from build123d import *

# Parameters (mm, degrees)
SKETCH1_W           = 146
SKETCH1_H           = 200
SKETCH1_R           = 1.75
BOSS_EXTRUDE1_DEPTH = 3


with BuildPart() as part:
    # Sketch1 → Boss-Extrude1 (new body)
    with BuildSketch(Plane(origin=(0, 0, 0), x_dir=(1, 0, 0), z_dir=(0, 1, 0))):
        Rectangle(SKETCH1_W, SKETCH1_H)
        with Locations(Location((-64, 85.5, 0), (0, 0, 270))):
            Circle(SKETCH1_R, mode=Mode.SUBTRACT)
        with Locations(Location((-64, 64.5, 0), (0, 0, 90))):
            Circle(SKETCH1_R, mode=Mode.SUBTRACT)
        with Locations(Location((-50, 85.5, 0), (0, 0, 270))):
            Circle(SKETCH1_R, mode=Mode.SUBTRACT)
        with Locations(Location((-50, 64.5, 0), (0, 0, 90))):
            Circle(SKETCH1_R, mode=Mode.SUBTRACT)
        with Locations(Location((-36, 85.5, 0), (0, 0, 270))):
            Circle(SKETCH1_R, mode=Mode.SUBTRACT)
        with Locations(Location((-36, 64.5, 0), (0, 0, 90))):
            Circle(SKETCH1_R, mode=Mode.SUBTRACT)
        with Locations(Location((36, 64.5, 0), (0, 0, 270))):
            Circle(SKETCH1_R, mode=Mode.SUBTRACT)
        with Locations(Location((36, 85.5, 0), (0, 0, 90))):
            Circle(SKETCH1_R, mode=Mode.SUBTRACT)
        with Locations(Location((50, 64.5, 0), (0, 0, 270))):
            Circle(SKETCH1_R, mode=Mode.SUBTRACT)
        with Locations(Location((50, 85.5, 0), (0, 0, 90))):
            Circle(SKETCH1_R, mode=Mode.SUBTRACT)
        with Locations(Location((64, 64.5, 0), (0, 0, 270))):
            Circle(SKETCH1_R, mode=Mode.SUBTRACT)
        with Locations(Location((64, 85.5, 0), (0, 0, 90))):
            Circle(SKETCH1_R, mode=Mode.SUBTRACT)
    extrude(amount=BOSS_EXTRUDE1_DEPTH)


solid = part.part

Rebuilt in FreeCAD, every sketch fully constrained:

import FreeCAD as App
import Part
import Sketcher


def add_polygon(sketch, points):
    """Adds a closed chain of lines whose ends are joined by coincident constraints."""
    first, n = sketch.GeometryCount, len(points)
    for a, b in zip(points, points[1:] + points[:1]):
        sketch.addGeometry(Part.LineSegment(App.Vector(*a, 0), App.Vector(*b, 0)), False)
    for i in range(n):
        sketch.addConstraint(Sketcher.Constraint("Coincident", first + i, 2, first + (i + 1) % n, 1))

doc = App.newDocument("Part")
body = doc.addObject("PartDesign::Body", "Body")

# Sketch on XZ plane
sketch1 = body.newObject("Sketcher::SketchObject", "Sketch")
sketch1.AttachmentSupport = (doc.getObject("XZ_Plane"), [""])
sketch1.MapMode = "FlatFace"
add_polygon(sketch1, [(-73, -100), (-73, 100), (73, 100), (73, -100)])  # lines 0-3
sketch1.addGeometry(Part.Circle(App.Vector(-64, -64.5, 0), App.Vector(0, 0, 1), 1.8), False)  # 4
sketch1.addGeometry(Part.Circle(App.Vector(-50, -64.5, 0), App.Vector(0, 0, 1), 1.8), False)  # 5
sketch1.addGeometry(Part.Circle(App.Vector(-36, -64.5, 0), App.Vector(0, 0, 1), 1.8), False)  # 6
sketch1.addGeometry(Part.Circle(App.Vector(36, -64.5, 0), App.Vector(0, 0, 1), 1.8), False)  # 7
sketch1.addGeometry(Part.Circle(App.Vector(50, -64.5, 0), App.Vector(0, 0, 1), 1.8), False)  # 8
sketch1.addGeometry(Part.Circle(App.Vector(64, -64.5, 0), App.Vector(0, 0, 1), 1.8), False)  # 9
sketch1.addGeometry(Part.Circle(App.Vector(-64, -85.5, 0), App.Vector(0, 0, 1), 1.8), False)  # 10
sketch1.addGeometry(Part.Circle(App.Vector(-50, -85.5, 0), App.Vector(0, 0, 1), 1.8), False)  # 11
sketch1.addGeometry(Part.Circle(App.Vector(-36, -85.5, 0), App.Vector(0, 0, 1), 1.8), False)  # 12
sketch1.addGeometry(Part.Circle(App.Vector(36, -85.5, 0), App.Vector(0, 0, 1), 1.8), False)  # 13
sketch1.addGeometry(Part.Circle(App.Vector(50, -85.5, 0), App.Vector(0, 0, 1), 1.8), False)  # 14
sketch1.addGeometry(Part.Circle(App.Vector(64, -85.5, 0), App.Vector(0, 0, 1), 1.8), False)  # 15
sketch1.addConstraint(Sketcher.Constraint("Vertical", 0))
sketch1.addConstraint(Sketcher.Constraint("Horizontal", 1))
sketch1.addConstraint(Sketcher.Constraint("Vertical", 2))
sketch1.addConstraint(Sketcher.Constraint("Horizontal", 3))
sketch1.addConstraint(Sketcher.Constraint("Equal", 4, 5))
sketch1.addConstraint(Sketcher.Constraint("Equal", 5, 6))
sketch1.addConstraint(Sketcher.Constraint("Equal", 6, 7))
sketch1.addConstraint(Sketcher.Constraint("Equal", 7, 8))
sketch1.addConstraint(Sketcher.Constraint("Equal", 8, 9))
sketch1.addConstraint(Sketcher.Constraint("Equal", 9, 10))
sketch1.addConstraint(Sketcher.Constraint("Equal", 10, 11))
sketch1.addConstraint(Sketcher.Constraint("Equal", 11, 12))
sketch1.addConstraint(Sketcher.Constraint("Equal", 12, 13))
sketch1.addConstraint(Sketcher.Constraint("Equal", 13, 14))
sketch1.addConstraint(Sketcher.Constraint("Equal", 14, 15))
sketch1.addConstraint(Sketcher.Constraint("Symmetric", 0, 2, 2, 2, -1, 1))
sketch1.addConstraint(Sketcher.Constraint("Symmetric", 6, 3, 7, 3, -2))
sketch1.addConstraint(Sketcher.Constraint("Symmetric", 5, 3, 8, 3, -2))
sketch1.addConstraint(Sketcher.Constraint("Symmetric", 4, 3, 9, 3, -2))
sketch1.addConstraint(Sketcher.Constraint("Symmetric", 12, 3, 13, 3, -2))
sketch1.addConstraint(Sketcher.Constraint("Symmetric", 11, 3, 14, 3, -2))
sketch1.addConstraint(Sketcher.Constraint("Symmetric", 10, 3, 15, 3, -2))
sketch1.addConstraint(Sketcher.Constraint("Horizontal", 4, 3, 5, 3))
sketch1.addConstraint(Sketcher.Constraint("Horizontal", 5, 3, 6, 3))
sketch1.addConstraint(Sketcher.Constraint("Horizontal", 10, 3, 11, 3))
sketch1.addConstraint(Sketcher.Constraint("Horizontal", 11, 3, 12, 3))
sketch1.addConstraint(Sketcher.Constraint("Vertical", 4, 3, 10, 3))
sketch1.addConstraint(Sketcher.Constraint("Vertical", 5, 3, 11, 3))
sketch1.addConstraint(Sketcher.Constraint("Vertical", 6, 3, 12, 3))
sketch1.addConstraint(Sketcher.Constraint("Diameter", 4, 3.5))
sketch1.addConstraint(Sketcher.Constraint("DistanceX", 1, 1, 1, 2, 146.0))
sketch1.addConstraint(Sketcher.Constraint("DistanceY", 0, 1, 0, 2, 200.0))
sketch1.addConstraint(Sketcher.Constraint("DistanceX", 4, 3, -1, 1, 64.0))
sketch1.addConstraint(Sketcher.Constraint("DistanceX", 5, 3, -1, 1, 50.0))
sketch1.addConstraint(Sketcher.Constraint("DistanceX", 6, 3, -1, 1, 36.0))
sketch1.addConstraint(Sketcher.Constraint("DistanceY", 10, 3, 4, 3, 21.0))
sketch1.addConstraint(Sketcher.Constraint("DistanceY", 4, 3, -1, 1, 64.5))
pad1 = body.newObject("PartDesign::Pad", "Pad")
pad1.Profile = sketch1
pad1.Length = 3
pad1.Reversed = True

doc.recompute()
